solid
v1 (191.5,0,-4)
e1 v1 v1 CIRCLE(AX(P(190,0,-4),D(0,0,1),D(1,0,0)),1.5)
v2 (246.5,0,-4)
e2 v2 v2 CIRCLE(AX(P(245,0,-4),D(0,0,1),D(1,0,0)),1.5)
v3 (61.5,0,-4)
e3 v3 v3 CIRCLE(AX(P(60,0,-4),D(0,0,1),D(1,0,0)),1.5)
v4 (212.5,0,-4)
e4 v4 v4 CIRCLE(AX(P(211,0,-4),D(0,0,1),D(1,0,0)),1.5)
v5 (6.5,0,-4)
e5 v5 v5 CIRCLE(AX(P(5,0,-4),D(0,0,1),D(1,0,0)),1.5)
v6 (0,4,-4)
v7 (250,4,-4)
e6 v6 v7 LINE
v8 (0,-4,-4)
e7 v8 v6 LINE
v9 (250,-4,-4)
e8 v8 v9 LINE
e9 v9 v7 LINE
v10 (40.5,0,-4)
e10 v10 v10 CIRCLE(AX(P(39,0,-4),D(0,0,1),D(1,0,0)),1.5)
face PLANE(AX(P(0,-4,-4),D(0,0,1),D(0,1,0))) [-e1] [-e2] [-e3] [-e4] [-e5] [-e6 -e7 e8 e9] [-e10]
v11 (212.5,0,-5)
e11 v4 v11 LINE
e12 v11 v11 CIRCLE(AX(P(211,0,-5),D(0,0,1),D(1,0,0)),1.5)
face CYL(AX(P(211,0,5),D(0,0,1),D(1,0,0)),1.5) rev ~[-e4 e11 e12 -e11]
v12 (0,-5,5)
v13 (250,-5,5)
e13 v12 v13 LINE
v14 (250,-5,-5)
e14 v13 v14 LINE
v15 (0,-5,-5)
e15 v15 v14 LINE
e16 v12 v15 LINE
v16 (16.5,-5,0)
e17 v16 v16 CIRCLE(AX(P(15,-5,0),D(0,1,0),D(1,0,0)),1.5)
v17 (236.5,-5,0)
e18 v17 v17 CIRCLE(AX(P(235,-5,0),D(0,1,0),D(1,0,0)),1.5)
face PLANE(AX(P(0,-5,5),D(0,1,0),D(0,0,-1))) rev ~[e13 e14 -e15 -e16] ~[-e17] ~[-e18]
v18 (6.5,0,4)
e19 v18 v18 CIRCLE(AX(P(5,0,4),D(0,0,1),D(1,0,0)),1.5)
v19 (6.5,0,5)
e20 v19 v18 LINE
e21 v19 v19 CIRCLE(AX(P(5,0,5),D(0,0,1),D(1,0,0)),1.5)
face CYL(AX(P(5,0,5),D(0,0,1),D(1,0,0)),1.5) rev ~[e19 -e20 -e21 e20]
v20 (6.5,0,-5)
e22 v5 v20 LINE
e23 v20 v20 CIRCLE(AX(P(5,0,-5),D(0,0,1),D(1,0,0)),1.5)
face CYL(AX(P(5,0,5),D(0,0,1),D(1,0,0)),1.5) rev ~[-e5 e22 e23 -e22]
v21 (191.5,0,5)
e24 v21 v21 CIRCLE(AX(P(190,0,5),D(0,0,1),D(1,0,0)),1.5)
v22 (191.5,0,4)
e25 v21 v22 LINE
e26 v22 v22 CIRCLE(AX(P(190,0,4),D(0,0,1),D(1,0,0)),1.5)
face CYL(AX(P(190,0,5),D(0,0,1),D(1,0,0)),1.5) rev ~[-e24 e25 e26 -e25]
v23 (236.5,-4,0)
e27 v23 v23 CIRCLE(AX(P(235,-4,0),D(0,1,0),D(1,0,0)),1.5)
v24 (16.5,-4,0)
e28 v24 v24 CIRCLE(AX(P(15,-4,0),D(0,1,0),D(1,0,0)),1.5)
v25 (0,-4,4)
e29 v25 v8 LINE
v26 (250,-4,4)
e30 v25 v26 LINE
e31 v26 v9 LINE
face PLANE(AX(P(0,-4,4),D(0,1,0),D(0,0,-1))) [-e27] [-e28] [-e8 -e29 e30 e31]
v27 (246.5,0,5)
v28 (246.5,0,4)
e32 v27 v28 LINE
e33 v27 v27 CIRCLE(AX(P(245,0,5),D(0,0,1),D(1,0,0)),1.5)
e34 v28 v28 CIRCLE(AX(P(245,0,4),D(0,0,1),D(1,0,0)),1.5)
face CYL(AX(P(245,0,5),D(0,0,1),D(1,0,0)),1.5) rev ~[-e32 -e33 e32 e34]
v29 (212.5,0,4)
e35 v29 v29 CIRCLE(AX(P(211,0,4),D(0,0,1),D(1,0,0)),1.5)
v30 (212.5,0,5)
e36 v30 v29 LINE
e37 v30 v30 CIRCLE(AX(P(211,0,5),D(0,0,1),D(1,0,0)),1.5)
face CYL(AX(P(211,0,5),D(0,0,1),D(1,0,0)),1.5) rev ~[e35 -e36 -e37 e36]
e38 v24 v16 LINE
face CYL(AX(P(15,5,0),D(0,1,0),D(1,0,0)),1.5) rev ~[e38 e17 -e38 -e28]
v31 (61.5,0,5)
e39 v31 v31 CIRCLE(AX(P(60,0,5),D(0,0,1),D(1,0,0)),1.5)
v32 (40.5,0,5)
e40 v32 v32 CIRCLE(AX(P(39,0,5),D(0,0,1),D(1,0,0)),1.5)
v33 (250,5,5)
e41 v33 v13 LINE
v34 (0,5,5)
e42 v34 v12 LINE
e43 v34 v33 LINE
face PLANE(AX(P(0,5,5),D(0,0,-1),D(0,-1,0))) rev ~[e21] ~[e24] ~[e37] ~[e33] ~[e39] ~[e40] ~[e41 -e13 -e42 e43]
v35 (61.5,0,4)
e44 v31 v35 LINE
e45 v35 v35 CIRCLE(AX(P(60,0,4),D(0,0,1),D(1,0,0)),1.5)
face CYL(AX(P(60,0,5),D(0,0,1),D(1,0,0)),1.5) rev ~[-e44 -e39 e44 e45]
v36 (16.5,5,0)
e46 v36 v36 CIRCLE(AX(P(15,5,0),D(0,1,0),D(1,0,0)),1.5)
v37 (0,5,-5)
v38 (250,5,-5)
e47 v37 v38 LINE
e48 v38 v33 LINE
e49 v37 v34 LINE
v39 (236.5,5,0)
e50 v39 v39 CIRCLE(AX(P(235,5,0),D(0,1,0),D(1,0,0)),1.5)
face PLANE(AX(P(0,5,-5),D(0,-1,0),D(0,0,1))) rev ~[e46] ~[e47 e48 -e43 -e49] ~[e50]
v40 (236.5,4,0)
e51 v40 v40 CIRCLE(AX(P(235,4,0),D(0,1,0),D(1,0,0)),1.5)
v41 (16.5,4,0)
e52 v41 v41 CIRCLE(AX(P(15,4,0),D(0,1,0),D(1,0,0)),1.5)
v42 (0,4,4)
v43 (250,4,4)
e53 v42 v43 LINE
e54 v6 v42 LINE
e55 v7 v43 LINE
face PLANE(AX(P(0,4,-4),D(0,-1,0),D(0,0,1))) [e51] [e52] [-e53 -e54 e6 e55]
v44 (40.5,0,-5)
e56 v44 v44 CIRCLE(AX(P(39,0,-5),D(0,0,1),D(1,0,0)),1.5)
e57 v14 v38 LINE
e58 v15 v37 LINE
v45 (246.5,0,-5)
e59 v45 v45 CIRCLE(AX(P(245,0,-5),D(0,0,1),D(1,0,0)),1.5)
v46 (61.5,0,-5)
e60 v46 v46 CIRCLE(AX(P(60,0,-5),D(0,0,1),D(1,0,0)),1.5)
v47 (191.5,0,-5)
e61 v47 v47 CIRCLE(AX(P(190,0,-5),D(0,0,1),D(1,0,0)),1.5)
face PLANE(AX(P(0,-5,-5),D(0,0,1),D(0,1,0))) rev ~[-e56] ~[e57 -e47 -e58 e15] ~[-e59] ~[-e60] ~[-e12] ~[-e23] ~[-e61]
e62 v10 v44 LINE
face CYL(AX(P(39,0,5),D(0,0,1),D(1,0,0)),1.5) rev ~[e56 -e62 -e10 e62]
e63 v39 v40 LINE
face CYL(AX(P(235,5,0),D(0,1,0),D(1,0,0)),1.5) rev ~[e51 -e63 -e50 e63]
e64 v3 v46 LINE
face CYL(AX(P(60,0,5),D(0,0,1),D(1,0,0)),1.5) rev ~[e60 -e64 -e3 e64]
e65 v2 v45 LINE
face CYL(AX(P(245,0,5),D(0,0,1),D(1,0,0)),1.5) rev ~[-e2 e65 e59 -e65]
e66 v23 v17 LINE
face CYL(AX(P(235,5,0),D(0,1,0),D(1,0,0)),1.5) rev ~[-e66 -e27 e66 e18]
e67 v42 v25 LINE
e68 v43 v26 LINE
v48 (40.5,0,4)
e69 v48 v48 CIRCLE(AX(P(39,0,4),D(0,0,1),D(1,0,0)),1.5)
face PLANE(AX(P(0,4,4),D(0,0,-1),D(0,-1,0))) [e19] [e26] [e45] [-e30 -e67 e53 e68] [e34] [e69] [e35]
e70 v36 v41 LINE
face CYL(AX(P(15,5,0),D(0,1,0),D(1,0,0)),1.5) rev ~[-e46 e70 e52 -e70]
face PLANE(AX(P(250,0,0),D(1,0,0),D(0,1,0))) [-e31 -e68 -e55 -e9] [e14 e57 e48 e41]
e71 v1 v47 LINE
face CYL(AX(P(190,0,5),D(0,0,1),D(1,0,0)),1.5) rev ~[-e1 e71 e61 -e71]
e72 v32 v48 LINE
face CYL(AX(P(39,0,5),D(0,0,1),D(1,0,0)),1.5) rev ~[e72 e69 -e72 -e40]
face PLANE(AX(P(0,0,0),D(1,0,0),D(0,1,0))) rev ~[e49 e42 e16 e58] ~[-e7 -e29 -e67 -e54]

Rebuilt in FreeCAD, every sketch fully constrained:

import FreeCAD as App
import Part
import Sketcher
from FreeCAD import Vector
Q = App.Units.Quantity


def add_polygon(sketch, points):
    """Adds a closed chain of lines whose ends are joined by coincident constraints."""
    first, n = sketch.GeometryCount, len(points)
    for a, b in zip(points, points[1:] + points[:1]):
        sketch.addGeometry(Part.LineSegment(App.Vector(*a, 0), App.Vector(*b, 0)), False)
    for i in range(n):
        sketch.addConstraint(Sketcher.Constraint("Coincident", first + i, 2, first + (i + 1) % n, 1))

doc = App.newDocument("Part")
body = doc.addObject("PartDesign::Body", "Body")

sketch1 = body.newObject("Sketcher::SketchObject", "Sketch")
sketch1.AttachmentSupport = (doc.getObject("YZ_Plane"), [""])
sketch1.MapMode = "FlatFace"
add_polygon(sketch1, [(5, -5), (5, 5), (-5, 5), (-5, -5)])
add_polygon(sketch1, [(-4, 4), (4, 4), (4, -4), (-4, -4)])
sketch1.addConstraint([
    Sketcher.Constraint("Vertical", 0),
    Sketcher.Constraint("Horizontal", 1),
    Sketcher.Constraint("Vertical", 2),
    Sketcher.Constraint("Horizontal", 3),
    Sketcher.Constraint("Horizontal", 4),
    Sketcher.Constraint("Vertical", 5),
    Sketcher.Constraint("Horizontal", 6),
    Sketcher.Constraint("Vertical", 7),
    Sketcher.Constraint("Symmetric", 0, 2, 2, 2, -1, 1),
    Sketcher.Constraint("Symmetric", 4, 2, 6, 2, -1, 1),
    Sketcher.Constraint("Equal", 3, 0),
    Sketcher.Constraint("Equal", 6, 5),
    Sketcher.Constraint("DistanceX", 1, 2, 1, 1, Q("10 mm")),
    Sketcher.Constraint("DistanceX", 4, 2, 0, 2, Q("1 mm")),
])
pad1 = body.newObject("PartDesign::Pad", "Pad")
pad1.Profile = sketch1
pad1.Length = 250

sketch2 = body.newObject("Sketcher::SketchObject", "Sketch001")
sketch2.AttachmentSupport = (doc.getObject("XY_Plane"), [""])
sketch2.MapMode = "FlatFace"
sketch2.AttachmentOffset = App.Placement(Vector(0, 0, 5), App.Rotation())
sketch2.addGeometry([
    Part.Circle(Vector(60, 0, 0), Vector(0, 0, 1), 1.5),
    Part.Circle(Vector(190, 0, 0), Vector(0, 0, 1), 1.5),
], False)
sketch2.addConstraint([
    Sketcher.Constraint("Equal", 0, 1),
    Sketcher.Constraint("PointOnObject", 0, 3, -1),
    Sketcher.Constraint("PointOnObject", 1, 3, -1),
    Sketcher.Constraint("Diameter", 0, Q("3 mm")),
    Sketcher.Constraint("DistanceX", -1, 1, 0, 3, Q("60 mm")),
    Sketcher.Constraint("DistanceX", -1, 1, 1, 3, Q("190 mm")),
])
pocket1 = body.newObject("PartDesign::Pocket", "Pocket")
pocket1.Profile = sketch2
pocket1.Length = 200

sketch3 = body.newObject("Sketcher::SketchObject", "Sketch002")
sketch3.AttachmentSupport = (doc.getObject("XY_Plane"), [""])
sketch3.MapMode = "FlatFace"
sketch3.AttachmentOffset = App.Placement(Vector(0, 0, 5), App.Rotation())
sketch3.addGeometry([
    Part.Circle(Vector(5, 0, 0), Vector(0, 0, 1), 1.5),
    Part.Circle(Vector(245, 0, 0), Vector(0, 0, 1), 1.5),
], False)
sketch3.addConstraint([
    Sketcher.Constraint("Equal", 0, 1),
    Sketcher.Constraint("PointOnObject", 0, 3, -1),
    Sketcher.Constraint("PointOnObject", 1, 3, -1),
    Sketcher.Constraint("Diameter", 0, Q("3 mm")),
    Sketcher.Constraint("DistanceX", -1, 1, 0, 3, Q("5 mm")),
    Sketcher.Constraint("DistanceX", -1, 1, 1, 3, Q("245 mm")),
])
pocket2 = body.newObject("PartDesign::Pocket", "Pocket001")
pocket2.Profile = sketch3
pocket2.Length = 200

sketch4 = body.newObject("Sketcher::SketchObject", "Sketch003")
sketch4.AttachmentSupport = (doc.getObject("XY_Plane"), [""])
sketch4.MapMode = "FlatFace"
sketch4.AttachmentOffset = App.Placement(Vector(0, 0, 5), App.Rotation())
sketch4.addGeometry([
    Part.Circle(Vector(39, 0, 0), Vector(0, 0, 1), 1.5),
    Part.Circle(Vector(211, 0, 0), Vector(0, 0, 1), 1.5),
], False)
sketch4.addConstraint([
    Sketcher.Constraint("Equal", 0, 1),
    Sketcher.Constraint("PointOnObject", 0, 3, -1),
    Sketcher.Constraint("PointOnObject", 1, 3, -1),
    Sketcher.Constraint("Diameter", 0, Q("3 mm")),
    Sketcher.Constraint("DistanceX", -1, 1, 0, 3, Q("39 mm")),
    Sketcher.Constraint("DistanceX", -1, 1, 1, 3, Q("211 mm")),
])
pocket3 = body.newObject("PartDesign::Pocket", "Pocket002")
pocket3.Profile = sketch4
pocket3.Length = 200

sketch5 = body.newObject("Sketcher::SketchObject", "Sketch004")
sketch5.AttachmentSupport = (doc.getObject("XZ_Plane"), [""])
sketch5.MapMode = "FlatFace"
sketch5.AttachmentOffset = App.Placement(Vector(0, 0, -5), App.Rotation())
sketch5.addGeometry([
    Part.Circle(Vector(15, 0, 0), Vector(0, 0, 1), 1.5),
    Part.Circle(Vector(235, 0, 0), Vector(0, 0, 1), 1.5),
], False)
sketch5.addConstraint([
    Sketcher.Constraint("Equal", 0, 1),
    Sketcher.Constraint("PointOnObject", 0, 3, -1),
    Sketcher.Constraint("PointOnObject", 1, 3, -1),
    Sketcher.Constraint("Diameter", 0, Q("3 mm")),
    Sketcher.Constraint("DistanceX", -1, 1, 0, 3, Q("15 mm")),
    Sketcher.Constraint("DistanceX", -1, 1, 1, 3, Q("235 mm")),
])
pocket4 = body.newObject("PartDesign::Pocket", "Pocket003")
pocket4.Profile = sketch5
pocket4.Length = 200
pocket4.Reversed = True

doc.recompute()
